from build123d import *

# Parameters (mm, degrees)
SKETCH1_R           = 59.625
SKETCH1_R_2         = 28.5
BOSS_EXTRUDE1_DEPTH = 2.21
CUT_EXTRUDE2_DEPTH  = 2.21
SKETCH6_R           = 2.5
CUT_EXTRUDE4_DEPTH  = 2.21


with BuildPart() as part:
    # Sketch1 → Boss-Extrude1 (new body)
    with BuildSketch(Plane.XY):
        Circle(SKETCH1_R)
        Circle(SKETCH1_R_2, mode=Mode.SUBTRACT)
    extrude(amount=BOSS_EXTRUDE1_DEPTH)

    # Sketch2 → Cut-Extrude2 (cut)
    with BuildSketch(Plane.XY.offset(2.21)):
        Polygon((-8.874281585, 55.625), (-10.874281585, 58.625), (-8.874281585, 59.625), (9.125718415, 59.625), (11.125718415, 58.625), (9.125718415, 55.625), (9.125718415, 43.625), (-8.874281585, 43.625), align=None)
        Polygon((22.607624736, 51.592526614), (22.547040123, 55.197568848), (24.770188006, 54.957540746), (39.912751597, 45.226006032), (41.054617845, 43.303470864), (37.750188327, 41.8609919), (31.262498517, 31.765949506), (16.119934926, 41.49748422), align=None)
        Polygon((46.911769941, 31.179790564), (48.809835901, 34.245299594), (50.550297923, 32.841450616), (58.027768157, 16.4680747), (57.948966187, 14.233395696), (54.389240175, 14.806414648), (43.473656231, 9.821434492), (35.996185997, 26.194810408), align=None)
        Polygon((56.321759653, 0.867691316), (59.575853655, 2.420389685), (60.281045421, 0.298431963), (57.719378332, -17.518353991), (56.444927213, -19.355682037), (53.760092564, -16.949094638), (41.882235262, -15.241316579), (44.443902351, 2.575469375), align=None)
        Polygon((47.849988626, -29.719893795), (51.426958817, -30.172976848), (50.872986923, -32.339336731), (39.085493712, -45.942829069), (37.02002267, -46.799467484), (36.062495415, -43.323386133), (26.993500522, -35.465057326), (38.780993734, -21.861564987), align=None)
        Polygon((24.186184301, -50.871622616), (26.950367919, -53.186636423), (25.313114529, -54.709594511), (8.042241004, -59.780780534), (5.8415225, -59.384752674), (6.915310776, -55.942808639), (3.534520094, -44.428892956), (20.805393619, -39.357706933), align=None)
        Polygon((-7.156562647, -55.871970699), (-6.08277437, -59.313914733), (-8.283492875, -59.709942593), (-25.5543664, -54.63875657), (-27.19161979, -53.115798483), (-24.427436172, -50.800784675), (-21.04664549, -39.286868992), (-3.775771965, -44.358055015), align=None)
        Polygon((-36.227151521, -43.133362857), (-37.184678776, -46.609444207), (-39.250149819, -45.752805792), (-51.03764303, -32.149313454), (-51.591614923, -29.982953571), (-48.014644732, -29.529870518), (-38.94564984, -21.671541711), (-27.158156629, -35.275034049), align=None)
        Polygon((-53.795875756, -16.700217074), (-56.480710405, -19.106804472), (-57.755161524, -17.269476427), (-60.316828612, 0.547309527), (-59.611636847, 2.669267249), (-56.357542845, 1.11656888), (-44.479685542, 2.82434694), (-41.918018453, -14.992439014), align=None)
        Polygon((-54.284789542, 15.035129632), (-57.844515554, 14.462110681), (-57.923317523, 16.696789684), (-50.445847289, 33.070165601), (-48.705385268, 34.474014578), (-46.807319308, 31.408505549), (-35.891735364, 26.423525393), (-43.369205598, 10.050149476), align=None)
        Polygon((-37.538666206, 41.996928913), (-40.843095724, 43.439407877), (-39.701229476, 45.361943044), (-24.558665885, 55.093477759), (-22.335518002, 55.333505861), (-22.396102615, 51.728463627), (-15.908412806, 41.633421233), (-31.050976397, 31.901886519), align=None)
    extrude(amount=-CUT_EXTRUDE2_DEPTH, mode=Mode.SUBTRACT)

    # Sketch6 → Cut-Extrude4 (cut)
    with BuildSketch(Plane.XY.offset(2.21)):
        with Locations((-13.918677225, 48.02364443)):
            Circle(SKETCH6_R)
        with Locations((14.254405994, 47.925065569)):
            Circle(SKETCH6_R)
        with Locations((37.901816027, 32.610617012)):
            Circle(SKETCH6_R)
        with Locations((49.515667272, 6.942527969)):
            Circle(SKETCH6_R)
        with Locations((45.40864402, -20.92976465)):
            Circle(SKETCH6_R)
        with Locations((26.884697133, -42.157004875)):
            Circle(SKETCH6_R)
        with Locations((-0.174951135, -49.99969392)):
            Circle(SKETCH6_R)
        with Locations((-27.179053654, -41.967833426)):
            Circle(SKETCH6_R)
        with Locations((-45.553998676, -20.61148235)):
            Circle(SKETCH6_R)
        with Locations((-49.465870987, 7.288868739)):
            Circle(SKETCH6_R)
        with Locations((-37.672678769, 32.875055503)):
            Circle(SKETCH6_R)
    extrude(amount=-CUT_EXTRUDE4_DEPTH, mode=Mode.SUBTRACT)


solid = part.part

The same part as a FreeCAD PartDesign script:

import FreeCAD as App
import Part
import Sketcher
from FreeCAD import Vector
Q = App.Units.Quantity


def add_polygon(sketch, points):
    """Adds a closed chain of lines whose ends are joined by coincident constraints."""
    first, n = sketch.GeometryCount, len(points)
    for a, b in zip(points, points[1:] + points[:1]):
        sketch.addGeometry(Part.LineSegment(App.Vector(*a, 0), App.Vector(*b, 0)), False)
    for i in range(n):
        sketch.addConstraint(Sketcher.Constraint("Coincident", first + i, 2, first + (i + 1) % n, 1))

doc = App.newDocument("Part")
body = doc.addObject("PartDesign::Body", "Body")

sketch1 = doc.addObject("Sketcher::SketchObject", "Sketch")
body.addObject(sketch1)
sketch1.AttachmentSupport = (doc.XY_Plane, [""])
sketch1.MapMode = "FlatFace"
sketch1.addGeometry([
    Part.Circle(Vector(0, 0, 0), Vector(0, 0, 1), 59.625),
    Part.Circle(Vector(0, 0, 0), Vector(0, 0, 1), 28.5),
], False)
sketch1.addConstraint([
    Sketcher.Constraint("Coincident", 0, 3, -1, 1),
    Sketcher.Constraint("Coincident", 1, 3, -1, 1),
    Sketcher.Constraint("Diameter", 1, Q("57 mm")),
    Sketcher.Constraint("Diameter", 0, Q("119.25 mm")),
])
pad1 = doc.addObject("PartDesign::Pad", "Pad")
body.addObject(pad1)
pad1.Profile = sketch1
pad1.Length = 2.21

sketch2 = doc.addObject("Sketcher::SketchObject", "Sketch001")
body.addObject(sketch2)
sketch2.AttachmentSupport = (doc.XY_Plane, [""])
sketch2.MapMode = "FlatFace"
sketch2.AttachmentOffset = App.Placement(Vector(0, 0, 2.21), App.Rotation())
add_polygon(sketch2, [(-10.874282, 58.625), (-8.874282, 55.625), (-8.874282, 43.625), (9.125718, 43.625), (9.125718, 55.625), (11.125718, 58.625), (9.125718, 59.625), (-8.874282, 59.625)])
add_polygon(sketch2, [(22.54704, 55.197569), (22.607625, 51.592527), (16.119935, 41.497484), (31.262499, 31.76595), (37.750188, 41.860992), (41.054618, 43.303471), (39.912752, 45.226006), (24.770188, 54.957541)])
add_polygon(sketch2, [(48.809836, 34.2453), (46.91177, 31.179791), (35.996186, 26.19481), (43.473656, 9.821434), (54.38924, 14.806415), (57.948966, 14.233396), (58.027768, 16.468075), (50.550298, 32.841451)])
add_polygon(sketch2, [(59.575854, 2.42039), (56.32176, 0.867691), (44.443902, 2.575469), (41.882235, -15.241317), (53.760093, -16.949095), (56.444927, -19.355682), (57.719378, -17.518354), (60.281045, 0.298432)])
add_polygon(sketch2, [(51.426959, -30.172977), (47.849989, -29.719894), (38.780994, -21.861565), (26.993501, -35.465057), (36.062495, -43.323386), (37.020023, -46.799467), (39.085494, -45.942829), (50.872987, -32.339337)])
add_polygon(sketch2, [(26.950368, -53.186636), (24.186184, -50.871623), (20.805394, -39.357707), (3.53452, -44.428893), (6.915311, -55.942809), (5.841522, -59.384753), (8.042241, -59.780781), (25.313115, -54.709595)])
add_polygon(sketch2, [(-6.082774, -59.313915), (-7.156563, -55.871971), (-3.775772, -44.358055), (-21.046645, -39.286869), (-24.427436, -50.800785), (-27.19162, -53.115798), (-25.554366, -54.638757), (-8.283493, -59.709943)])
add_polygon(sketch2, [(-37.184679, -46.609444), (-36.227152, -43.133363), (-27.158157, -35.275034), (-38.94565, -21.671542), (-48.014645, -29.529871), (-51.591615, -29.982954), (-51.037643, -32.149313), (-39.25015, -45.752806)])
add_polygon(sketch2, [(-56.48071, -19.106804), (-53.795876, -16.700217), (-41.918018, -14.992439), (-44.479686, 2.824347), (-56.357543, 1.116569), (-59.611637, 2.669267), (-60.316829, 0.54731), (-57.755162, -17.269476)])
add_polygon(sketch2, [(-57.844516, 14.462111), (-54.28479, 15.03513), (-43.369206, 10.050149), (-35.891735, 26.423525), (-46.807319, 31.408506), (-48.705385, 34.474015), (-50.445847, 33.070166), (-57.923318, 16.69679)])
add_polygon(sketch2, [(-40.843096, 43.439408), (-37.538666, 41.996929), (-31.050976, 31.901887), (-15.908413, 41.633421), (-22.396103, 51.728464), (-22.335518, 55.333506), (-24.558666, 55.093478), (-39.701229, 45.361943)])
sketch2.addConstraint([
    Sketcher.Constraint("Vertical", 1),
    Sketcher.Constraint("Horizontal", 2),
    Sketcher.Constraint("Vertical", 3),
    Sketcher.Constraint("Horizontal", 6),
    Sketcher.Constraint("Perpendicular", 9, 10),
    Sketcher.Constraint("Perpendicular", 10, 11),
    Sketcher.Constraint("Perpendicular", 11, 14),
    Sketcher.Constraint("Perpendicular", 17, 18),
    Sketcher.Constraint("Perpendicular", 18, 19),
    Sketcher.Constraint("Perpendicular", 19, 22),
    Sketcher.Constraint("Perpendicular", 25, 26),
    Sketcher.Constraint("Perpendicular", 26, 27),
    Sketcher.Constraint("Perpendicular", 27, 30),
    Sketcher.Constraint("Perpendicular", 33, 34),
    Sketcher.Constraint("Perpendicular", 34, 35),
    Sketcher.Constraint("Perpendicular", 35, 38),
    Sketcher.Constraint("Perpendicular", 41, 42),
    Sketcher.Constraint("Perpendicular", 42, 43),
    Sketcher.Constraint("Perpendicular", 43, 46),
    Sketcher.Constraint("Perpendicular", 49, 50),
    Sketcher.Constraint("Perpendicular", 50, 51),
    Sketcher.Constraint("Perpendicular", 51, 54),
    Sketcher.Constraint("Perpendicular", 57, 58),
    Sketcher.Constraint("Perpendicular", 58, 59),
    Sketcher.Constraint("Perpendicular", 59, 62),
    Sketcher.Constraint("Perpendicular", 65, 66),
    Sketcher.Constraint("Perpendicular", 66, 67),
    Sketcher.Constraint("Perpendicular", 67, 70),
    Sketcher.Constraint("Perpendicular", 73, 74),
    Sketcher.Constraint("Perpendicular", 74, 75),
    Sketcher.Constraint("Perpendicular", 75, 78),
    Sketcher.Constraint("Perpendicular", 81, 82),
    Sketcher.Constraint("Perpendicular", 82, 83),
    Sketcher.Constraint("Perpendicular", 83, 86),
    Sketcher.Constraint("Horizontal", 0, 2, 3, 2),
    Sketcher.Constraint("Horizontal", 4, 2, 7, 2),
    Sketcher.Constraint("Vertical", 3, 2, 5, 2),
    Sketcher.Constraint("Vertical", 1, 2, 6, 2),
    Sketcher.Constraint("Equal", 0, 4),
    Sketcher.Constraint("Equal", 4, 8),
    Sketcher.Constraint("Equal", 9, 11),
    Sketcher.Constraint("Equal", 8, 12),
    Sketcher.Constraint("Equal", 7, 13),
    Sketcher.Constraint("Equal", 10, 14),
    Sketcher.Constraint("Equal", 13, 15),
    Sketcher.Constraint("Equal", 12, 16),
    Sketcher.Constraint("Equal", 11, 17),
    Sketcher.Constraint("Equal", 14, 18),
    Sketcher.Constraint("Equal", 17, 19),
    Sketcher.Constraint("Equal", 16, 20),
    Sketcher.Constraint("Equal", 15, 21),
    Sketcher.Constraint("Equal", 18, 22),
    Sketcher.Constraint("Equal", 21, 23),
    Sketcher.Constraint("Equal", 20, 24),
    Sketcher.Constraint("Equal", 19, 25),
    Sketcher.Constraint("Equal", 22, 26),
    Sketcher.Constraint("Equal", 25, 27),
    Sketcher.Constraint("Equal", 24, 28),
    Sketcher.Constraint("Equal", 23, 29),
    Sketcher.Constraint("Equal", 26, 30),
    Sketcher.Constraint("Equal", 29, 31),
    Sketcher.Constraint("Equal", 28, 32),
    Sketcher.Constraint("Equal", 27, 33),
    Sketcher.Constraint("Equal", 30, 34),
    Sketcher.Constraint("Equal", 33, 35),
    Sketcher.Constraint("Equal", 32, 36),
    Sketcher.Constraint("Equal", 31, 37),
    Sketcher.Constraint("Equal", 34, 38),
    Sketcher.Constraint("Equal", 37, 39),
    Sketcher.Constraint("Equal", 36, 40),
    Sketcher.Constraint("Equal", 35, 41),
    Sketcher.Constraint("Equal", 38, 42),
    Sketcher.Constraint("Equal", 41, 43),
    Sketcher.Constraint("Equal", 40, 44),
    Sketcher.Constraint("Equal", 39, 45),
    Sketcher.Constraint("Equal", 42, 46),
    Sketcher.Constraint("Equal", 45, 47),
    Sketcher.Constraint("Equal", 44, 48),
    Sketcher.Constraint("Equal", 43, 49),
    Sketcher.Constraint("Equal", 46, 50),
    Sketcher.Constraint("Equal", 49, 51),
    Sketcher.Constraint("Equal", 48, 52),
    Sketcher.Constraint("Equal", 47, 53),
    Sketcher.Constraint("Equal", 50, 54),
    Sketcher.Constraint("Equal", 53, 55),
    Sketcher.Constraint("Equal", 52, 56),
    Sketcher.Constraint("Equal", 51, 57),
    Sketcher.Constraint("Equal", 54, 58),
    Sketcher.Constraint("Equal", 57, 59),
    Sketcher.Constraint("Equal", 56, 60),
    Sketcher.Constraint("Equal", 55, 61),
    Sketcher.Constraint("Equal", 58, 62),
    Sketcher.Constraint("Equal", 61, 63),
    Sketcher.Constraint("Equal", 60, 64),
    Sketcher.Constraint("Equal", 59, 65),
    Sketcher.Constraint("Equal", 62, 66),
    Sketcher.Constraint("Equal", 65, 67),
    Sketcher.Constraint("Equal", 64, 68),
    Sketcher.Constraint("Equal", 63, 69),
    Sketcher.Constraint("Equal", 66, 70),
    Sketcher.Constraint("Equal", 69, 71),
    Sketcher.Constraint("Equal", 68, 72),
    Sketcher.Constraint("Equal", 67, 73),
    Sketcher.Constraint("Equal", 70, 74),
    Sketcher.Constraint("Equal", 73, 75),
    Sketcher.Constraint("Equal", 72, 76),
    Sketcher.Constraint("Equal", 71, 77),
    Sketcher.Constraint("Equal", 74, 78),
    Sketcher.Constraint("Equal", 77, 79),
    Sketcher.Constraint("Equal", 76, 80),
    Sketcher.Constraint("Equal", 75, 81),
    Sketcher.Constraint("Equal", 78, 82),
    Sketcher.Constraint("Equal", 81, 83),
    Sketcher.Constraint("Equal", 80, 84),
    Sketcher.Constraint("Equal", 79, 85),
    Sketcher.Constraint("Equal", 82, 86),
    Sketcher.Constraint("Equal", 85, 87),
    Sketcher.Constraint("DistanceX", 2, 1, 2, 2, Q("18 mm")),
    Sketcher.Constraint("DistanceY", 1, 2, 1, 1, Q("12 mm")),
    Sketcher.Constraint("Distance", 9, Q("12 mm")),
    Sketcher.Constraint("Distance", 10, Q("18 mm")),
    Sketcher.Constraint("DistanceY", -1, 1, 0, 2, Q("55.625 mm")),
    Sketcher.Constraint("DistanceY", -1, 1, 4, 2, Q("58.625 mm")),
    Sketcher.Constraint("DistanceY", -1, 1, 5, 2, Q("59.625 mm")),
    Sketcher.Constraint("DistanceX", -1, 1, 10, 2, Q("31.262499 mm")),
    Sketcher.Constraint("DistanceY", -1, 1, 23, 2, Q("34.2453 mm")),
    Sketcher.Constraint("DistanceX", -1, 1, 34, 2, Q("26.993501 mm")),
    Sketcher.Constraint("DistanceY", 52, 2, -1, 1, Q("53.115798 mm")),
    Sketcher.Constraint("Distance", 0, Q("3.605551 mm")),
    Sketcher.Constraint("DistanceX", 0, 2, -1, 1, Q("8.874282 mm")),
    Sketcher.Constraint("DistanceY", -1, 1, 10, 2, Q("31.76595 mm")),
    Sketcher.Constraint("DistanceX", -1, 1, 11, 2, Q("37.750188 mm")),
    Sketcher.Constraint("DistanceY", -1, 1, 12, 2, Q("43.303471 mm")),
    Sketcher.Constraint("DistanceX", -1, 1, 13, 2, Q("39.912752 mm")),
    Sketcher.Constraint("DistanceX", -1, 1, 16, 2, Q("46.91177 mm")),
    Sketcher.Constraint("DistanceY", -1, 1, 16, 2, Q("31.179791 mm")),
    Sketcher.Constraint("DistanceY", -1, 1, 17, 2, Q("26.19481 mm")),
    Sketcher.Constraint("DistanceX", -1, 1, 21, 2, Q("58.027768 mm")),
    Sketcher.Constraint("DistanceX", -1, 1, 24, 2, Q("56.32176 mm")),
    Sketcher.Constraint("DistanceY", -1, 1, 24, 2, Q("0.867691 mm")),
    Sketcher.Constraint("DistanceY", -1, 1, 25, 2, Q("2.575469 mm")),
    Sketcher.Constraint("DistanceX", -1, 1, 29, 2, Q("57.719378 mm")),
    Sketcher.Constraint("DistanceY", -1, 1, 30, 2, Q("0.298432 mm")),
    Sketcher.Constraint("DistanceX", -1, 1, 32, 2, Q("47.849989 mm")),
    Sketcher.Constraint("DistanceY", 37, 2, -1, 1, Q("45.942829 mm")),
    Sketcher.Constraint("DistanceX", -1, 1, 39, 2, Q("51.426959 mm")),
    Sketcher.Constraint("DistanceX", -1, 1, 42, 2, Q("3.53452 mm")),
    Sketcher.Constraint("DistanceX", -1, 1, 43, 2, Q("6.915311 mm")),
    Sketcher.Constraint("DistanceY", 43, 2, -1, 1, Q("55.942809 mm")),
    Sketcher.Constraint("DistanceX", -1, 1, 45, 2, Q("8.042241 mm")),
    Sketcher.Constraint("DistanceY", 45, 2, -1, 1, Q("59.780781 mm")),
    Sketcher.Constraint("DistanceY", 48, 2, -1, 1, Q("55.871971 mm")),
    Sketcher.Constraint("DistanceX", 49, 2, -1, 1, Q("3.775772 mm")),
    Sketcher.Constraint("DistanceY", 50, 2, -1, 1, Q("39.286869 mm")),
    Sketcher.Constraint("DistanceX", 56, 2, -1, 1, Q("36.227152 mm")),
    Sketcher.Constraint("DistanceX", 58, 2, -1, 1, Q("38.94565 mm")),
    Sketcher.Constraint("DistanceY", 58, 2, -1, 1, Q("21.671542 mm")),
    Sketcher.Constraint("DistanceX", 62, 2, -1, 1, Q("39.25015 mm")),
    Sketcher.Constraint("DistanceX", 63, 2, -1, 1, Q("37.184679 mm")),
    Sketcher.Constraint("DistanceX", 65, 2, -1, 1, Q("41.918018 mm")),
    Sketcher.Constraint("DistanceY", 65, 2, -1, 1, Q("14.992439 mm")),
    Sketcher.Constraint("DistanceY", -1, 1, 67, 2, Q("1.116569 mm")),
    Sketcher.Constraint("DistanceX", 69, 2, -1, 1, Q("60.316829 mm")),
    Sketcher.Constraint("DistanceY", -1, 1, 69, 2, Q("0.54731 mm")),
    Sketcher.Constraint("DistanceX", 72, 2, -1, 1, Q("54.28479 mm")),
    Sketcher.Constraint("DistanceY", -1, 1, 72, 2, Q("15.03513 mm")),
    Sketcher.Constraint("DistanceY", -1, 1, 73, 2, Q("10.050149 mm")),
    Sketcher.Constraint("DistanceY", -1, 1, 78, 2, Q("16.69679 mm")),
    Sketcher.Constraint("DistanceY", -1, 1, 79, 2, Q("14.462111 mm")),
    Sketcher.Constraint("DistanceY", -1, 1, 80, 2, Q("41.996929 mm")),
    Sketcher.Constraint("DistanceY", -1, 1, 82, 2, Q("41.633421 mm")),
    Sketcher.Constraint("DistanceX", 84, 2, -1, 1, Q("22.335518 mm")),
    Sketcher.Constraint("DistanceX", 86, 2, -1, 1, Q("39.701229 mm")),
    Sketcher.Constraint("DistanceY", 32, 2, -1, 1, Q("29.719894 mm")),
    Sketcher.Constraint("DistanceX", 53, 2, -1, 1, Q("25.554366 mm")),
    Sketcher.Constraint("DistanceX", 80, 2, -1, 1, Q("37.538666 mm")),
])
pocket1 = doc.addObject("PartDesign::Pocket", "Pocket")
body.addObject(pocket1)
pocket1.Profile = sketch2
pocket1.Length = 2.21

sketch3 = doc.addObject("Sketcher::SketchObject", "Sketch002")
body.addObject(sketch3)
sketch3.AttachmentSupport = (doc.XY_Plane, [""])
sketch3.MapMode = "FlatFace"
sketch3.AttachmentOffset = App.Placement(Vector(0, 0, 2.21), App.Rotation())
sketch3.addGeometry([
    Part.Circle(Vector(-13.918677, 48.023644, 0), Vector(0, 0, 1), 2.5),
    Part.Circle(Vector(14.254406, 47.925066, 0), Vector(0, 0, 1), 2.5),
    Part.Circle(Vector(37.901816, 32.610617, 0), Vector(0, 0, 1), 2.5),
    Part.Circle(Vector(49.515667, 6.942528, 0), Vector(0, 0, 1), 2.5),
    Part.Circle(Vector(45.408644, -20.929765, 0), Vector(0, 0, 1), 2.5),
    Part.Circle(Vector(26.884697, -42.157005, 0), Vector(0, 0, 1), 2.5),
    Part.Circle(Vector(-0.174951, -49.999694, 0), Vector(0, 0, 1), 2.5),
    Part.Circle(Vector(-27.179054, -41.967833, 0), Vector(0, 0, 1), 2.5),
    Part.Circle(Vector(-45.553999, -20.611482, 0), Vector(0, 0, 1), 2.5),
    Part.Circle(Vector(-49.465871, 7.288869, 0), Vector(0, 0, 1), 2.5),
    Part.Circle(Vector(-37.672679, 32.875056, 0), Vector(0, 0, 1), 2.5),
], False)
sketch3.addConstraint([
    Sketcher.Constraint("Equal", 0, 1),
    Sketcher.Constraint("Equal", 1, 2),
    Sketcher.Constraint("Equal", 2, 3),
    Sketcher.Constraint("Equal", 3, 4),
    Sketcher.Constraint("Equal", 4, 5),
    Sketcher.Constraint("Equal", 5, 6),
    Sketcher.Constraint("Equal", 6, 7),
    Sketcher.Constraint("Equal", 7, 8),
    Sketcher.Constraint("Equal", 8, 9),
    Sketcher.Constraint("Equal", 9, 10),
    Sketcher.Constraint("Diameter", 0, Q("5 mm")),
    Sketcher.Constraint("DistanceX", 8, 3, -1, 1, Q("45.553999 mm")),
    Sketcher.Constraint("DistanceX", 10, 3, 0, 3, Q("23.754002 mm")),
    Sketcher.Constraint("DistanceX", 6, 3, -1, 1, Q("0.174951 mm")),
    Sketcher.Constraint("DistanceX", 9, 3, -1, 1, Q("49.465871 mm")),
    Sketcher.Constraint("DistanceY", -1, 1, 9, 3, Q("7.288869 mm")),
    Sketcher.Constraint("DistanceX", 10, 3, -1, 1, Q("37.672679 mm")),
    Sketcher.Constraint("DistanceY", 1, 3, 0, 3, Q("0.098579 mm")),
    Sketcher.Constraint("DistanceX", 1, 3, 2, 3, Q("23.64741 mm")),
    Sketcher.Constraint("DistanceY", 2, 3, 1, 3, Q("15.314449 mm")),
    Sketcher.Constraint("DistanceX", 2, 3, 3, 3, Q("11.613851 mm")),
    Sketcher.Constraint("DistanceY", 3, 3, 2, 3, Q("25.668089 mm")),
    Sketcher.Constraint("DistanceY", 4, 3, 2, 3, Q("53.540382 mm")),
    Sketcher.Constraint("DistanceX", 1, 3, 4, 3, Q("31.154238 mm")),
    Sketcher.Constraint("DistanceX", 0, 3, 4, 3, Q("59.327321 mm")),
    Sketcher.Constraint("DistanceY", 5, 3, 4, 3, Q("21.22724 mm")),
    Sketcher.Constraint("DistanceX", 5, 3, 3, 3, Q("22.63097 mm")),
    Sketcher.Constraint("DistanceY", 6, 3, 5, 3, Q("7.842689 mm")),
    Sketcher.Constraint("DistanceY", 6, 3, 7, 3, Q("8.03186 mm")),
    Sketcher.Constraint("DistanceX", 7, 3, 5, 3, Q("54.063751 mm")),
    Sketcher.Constraint("DistanceY", 7, 3, 8, 3, Q("21.356351 mm")),
    Sketcher.Constraint("DistanceY", 8, 3, 9, 3, Q("27.900351 mm")),
    Sketcher.Constraint("DistanceY", 10, 3, 0, 3, Q("15.148589 mm")),
])
pocket2 = doc.addObject("PartDesign::Pocket", "Pocket001")
body.addObject(pocket2)
pocket2.Profile = sketch3
pocket2.Length = 2.21

doc.recompute()
